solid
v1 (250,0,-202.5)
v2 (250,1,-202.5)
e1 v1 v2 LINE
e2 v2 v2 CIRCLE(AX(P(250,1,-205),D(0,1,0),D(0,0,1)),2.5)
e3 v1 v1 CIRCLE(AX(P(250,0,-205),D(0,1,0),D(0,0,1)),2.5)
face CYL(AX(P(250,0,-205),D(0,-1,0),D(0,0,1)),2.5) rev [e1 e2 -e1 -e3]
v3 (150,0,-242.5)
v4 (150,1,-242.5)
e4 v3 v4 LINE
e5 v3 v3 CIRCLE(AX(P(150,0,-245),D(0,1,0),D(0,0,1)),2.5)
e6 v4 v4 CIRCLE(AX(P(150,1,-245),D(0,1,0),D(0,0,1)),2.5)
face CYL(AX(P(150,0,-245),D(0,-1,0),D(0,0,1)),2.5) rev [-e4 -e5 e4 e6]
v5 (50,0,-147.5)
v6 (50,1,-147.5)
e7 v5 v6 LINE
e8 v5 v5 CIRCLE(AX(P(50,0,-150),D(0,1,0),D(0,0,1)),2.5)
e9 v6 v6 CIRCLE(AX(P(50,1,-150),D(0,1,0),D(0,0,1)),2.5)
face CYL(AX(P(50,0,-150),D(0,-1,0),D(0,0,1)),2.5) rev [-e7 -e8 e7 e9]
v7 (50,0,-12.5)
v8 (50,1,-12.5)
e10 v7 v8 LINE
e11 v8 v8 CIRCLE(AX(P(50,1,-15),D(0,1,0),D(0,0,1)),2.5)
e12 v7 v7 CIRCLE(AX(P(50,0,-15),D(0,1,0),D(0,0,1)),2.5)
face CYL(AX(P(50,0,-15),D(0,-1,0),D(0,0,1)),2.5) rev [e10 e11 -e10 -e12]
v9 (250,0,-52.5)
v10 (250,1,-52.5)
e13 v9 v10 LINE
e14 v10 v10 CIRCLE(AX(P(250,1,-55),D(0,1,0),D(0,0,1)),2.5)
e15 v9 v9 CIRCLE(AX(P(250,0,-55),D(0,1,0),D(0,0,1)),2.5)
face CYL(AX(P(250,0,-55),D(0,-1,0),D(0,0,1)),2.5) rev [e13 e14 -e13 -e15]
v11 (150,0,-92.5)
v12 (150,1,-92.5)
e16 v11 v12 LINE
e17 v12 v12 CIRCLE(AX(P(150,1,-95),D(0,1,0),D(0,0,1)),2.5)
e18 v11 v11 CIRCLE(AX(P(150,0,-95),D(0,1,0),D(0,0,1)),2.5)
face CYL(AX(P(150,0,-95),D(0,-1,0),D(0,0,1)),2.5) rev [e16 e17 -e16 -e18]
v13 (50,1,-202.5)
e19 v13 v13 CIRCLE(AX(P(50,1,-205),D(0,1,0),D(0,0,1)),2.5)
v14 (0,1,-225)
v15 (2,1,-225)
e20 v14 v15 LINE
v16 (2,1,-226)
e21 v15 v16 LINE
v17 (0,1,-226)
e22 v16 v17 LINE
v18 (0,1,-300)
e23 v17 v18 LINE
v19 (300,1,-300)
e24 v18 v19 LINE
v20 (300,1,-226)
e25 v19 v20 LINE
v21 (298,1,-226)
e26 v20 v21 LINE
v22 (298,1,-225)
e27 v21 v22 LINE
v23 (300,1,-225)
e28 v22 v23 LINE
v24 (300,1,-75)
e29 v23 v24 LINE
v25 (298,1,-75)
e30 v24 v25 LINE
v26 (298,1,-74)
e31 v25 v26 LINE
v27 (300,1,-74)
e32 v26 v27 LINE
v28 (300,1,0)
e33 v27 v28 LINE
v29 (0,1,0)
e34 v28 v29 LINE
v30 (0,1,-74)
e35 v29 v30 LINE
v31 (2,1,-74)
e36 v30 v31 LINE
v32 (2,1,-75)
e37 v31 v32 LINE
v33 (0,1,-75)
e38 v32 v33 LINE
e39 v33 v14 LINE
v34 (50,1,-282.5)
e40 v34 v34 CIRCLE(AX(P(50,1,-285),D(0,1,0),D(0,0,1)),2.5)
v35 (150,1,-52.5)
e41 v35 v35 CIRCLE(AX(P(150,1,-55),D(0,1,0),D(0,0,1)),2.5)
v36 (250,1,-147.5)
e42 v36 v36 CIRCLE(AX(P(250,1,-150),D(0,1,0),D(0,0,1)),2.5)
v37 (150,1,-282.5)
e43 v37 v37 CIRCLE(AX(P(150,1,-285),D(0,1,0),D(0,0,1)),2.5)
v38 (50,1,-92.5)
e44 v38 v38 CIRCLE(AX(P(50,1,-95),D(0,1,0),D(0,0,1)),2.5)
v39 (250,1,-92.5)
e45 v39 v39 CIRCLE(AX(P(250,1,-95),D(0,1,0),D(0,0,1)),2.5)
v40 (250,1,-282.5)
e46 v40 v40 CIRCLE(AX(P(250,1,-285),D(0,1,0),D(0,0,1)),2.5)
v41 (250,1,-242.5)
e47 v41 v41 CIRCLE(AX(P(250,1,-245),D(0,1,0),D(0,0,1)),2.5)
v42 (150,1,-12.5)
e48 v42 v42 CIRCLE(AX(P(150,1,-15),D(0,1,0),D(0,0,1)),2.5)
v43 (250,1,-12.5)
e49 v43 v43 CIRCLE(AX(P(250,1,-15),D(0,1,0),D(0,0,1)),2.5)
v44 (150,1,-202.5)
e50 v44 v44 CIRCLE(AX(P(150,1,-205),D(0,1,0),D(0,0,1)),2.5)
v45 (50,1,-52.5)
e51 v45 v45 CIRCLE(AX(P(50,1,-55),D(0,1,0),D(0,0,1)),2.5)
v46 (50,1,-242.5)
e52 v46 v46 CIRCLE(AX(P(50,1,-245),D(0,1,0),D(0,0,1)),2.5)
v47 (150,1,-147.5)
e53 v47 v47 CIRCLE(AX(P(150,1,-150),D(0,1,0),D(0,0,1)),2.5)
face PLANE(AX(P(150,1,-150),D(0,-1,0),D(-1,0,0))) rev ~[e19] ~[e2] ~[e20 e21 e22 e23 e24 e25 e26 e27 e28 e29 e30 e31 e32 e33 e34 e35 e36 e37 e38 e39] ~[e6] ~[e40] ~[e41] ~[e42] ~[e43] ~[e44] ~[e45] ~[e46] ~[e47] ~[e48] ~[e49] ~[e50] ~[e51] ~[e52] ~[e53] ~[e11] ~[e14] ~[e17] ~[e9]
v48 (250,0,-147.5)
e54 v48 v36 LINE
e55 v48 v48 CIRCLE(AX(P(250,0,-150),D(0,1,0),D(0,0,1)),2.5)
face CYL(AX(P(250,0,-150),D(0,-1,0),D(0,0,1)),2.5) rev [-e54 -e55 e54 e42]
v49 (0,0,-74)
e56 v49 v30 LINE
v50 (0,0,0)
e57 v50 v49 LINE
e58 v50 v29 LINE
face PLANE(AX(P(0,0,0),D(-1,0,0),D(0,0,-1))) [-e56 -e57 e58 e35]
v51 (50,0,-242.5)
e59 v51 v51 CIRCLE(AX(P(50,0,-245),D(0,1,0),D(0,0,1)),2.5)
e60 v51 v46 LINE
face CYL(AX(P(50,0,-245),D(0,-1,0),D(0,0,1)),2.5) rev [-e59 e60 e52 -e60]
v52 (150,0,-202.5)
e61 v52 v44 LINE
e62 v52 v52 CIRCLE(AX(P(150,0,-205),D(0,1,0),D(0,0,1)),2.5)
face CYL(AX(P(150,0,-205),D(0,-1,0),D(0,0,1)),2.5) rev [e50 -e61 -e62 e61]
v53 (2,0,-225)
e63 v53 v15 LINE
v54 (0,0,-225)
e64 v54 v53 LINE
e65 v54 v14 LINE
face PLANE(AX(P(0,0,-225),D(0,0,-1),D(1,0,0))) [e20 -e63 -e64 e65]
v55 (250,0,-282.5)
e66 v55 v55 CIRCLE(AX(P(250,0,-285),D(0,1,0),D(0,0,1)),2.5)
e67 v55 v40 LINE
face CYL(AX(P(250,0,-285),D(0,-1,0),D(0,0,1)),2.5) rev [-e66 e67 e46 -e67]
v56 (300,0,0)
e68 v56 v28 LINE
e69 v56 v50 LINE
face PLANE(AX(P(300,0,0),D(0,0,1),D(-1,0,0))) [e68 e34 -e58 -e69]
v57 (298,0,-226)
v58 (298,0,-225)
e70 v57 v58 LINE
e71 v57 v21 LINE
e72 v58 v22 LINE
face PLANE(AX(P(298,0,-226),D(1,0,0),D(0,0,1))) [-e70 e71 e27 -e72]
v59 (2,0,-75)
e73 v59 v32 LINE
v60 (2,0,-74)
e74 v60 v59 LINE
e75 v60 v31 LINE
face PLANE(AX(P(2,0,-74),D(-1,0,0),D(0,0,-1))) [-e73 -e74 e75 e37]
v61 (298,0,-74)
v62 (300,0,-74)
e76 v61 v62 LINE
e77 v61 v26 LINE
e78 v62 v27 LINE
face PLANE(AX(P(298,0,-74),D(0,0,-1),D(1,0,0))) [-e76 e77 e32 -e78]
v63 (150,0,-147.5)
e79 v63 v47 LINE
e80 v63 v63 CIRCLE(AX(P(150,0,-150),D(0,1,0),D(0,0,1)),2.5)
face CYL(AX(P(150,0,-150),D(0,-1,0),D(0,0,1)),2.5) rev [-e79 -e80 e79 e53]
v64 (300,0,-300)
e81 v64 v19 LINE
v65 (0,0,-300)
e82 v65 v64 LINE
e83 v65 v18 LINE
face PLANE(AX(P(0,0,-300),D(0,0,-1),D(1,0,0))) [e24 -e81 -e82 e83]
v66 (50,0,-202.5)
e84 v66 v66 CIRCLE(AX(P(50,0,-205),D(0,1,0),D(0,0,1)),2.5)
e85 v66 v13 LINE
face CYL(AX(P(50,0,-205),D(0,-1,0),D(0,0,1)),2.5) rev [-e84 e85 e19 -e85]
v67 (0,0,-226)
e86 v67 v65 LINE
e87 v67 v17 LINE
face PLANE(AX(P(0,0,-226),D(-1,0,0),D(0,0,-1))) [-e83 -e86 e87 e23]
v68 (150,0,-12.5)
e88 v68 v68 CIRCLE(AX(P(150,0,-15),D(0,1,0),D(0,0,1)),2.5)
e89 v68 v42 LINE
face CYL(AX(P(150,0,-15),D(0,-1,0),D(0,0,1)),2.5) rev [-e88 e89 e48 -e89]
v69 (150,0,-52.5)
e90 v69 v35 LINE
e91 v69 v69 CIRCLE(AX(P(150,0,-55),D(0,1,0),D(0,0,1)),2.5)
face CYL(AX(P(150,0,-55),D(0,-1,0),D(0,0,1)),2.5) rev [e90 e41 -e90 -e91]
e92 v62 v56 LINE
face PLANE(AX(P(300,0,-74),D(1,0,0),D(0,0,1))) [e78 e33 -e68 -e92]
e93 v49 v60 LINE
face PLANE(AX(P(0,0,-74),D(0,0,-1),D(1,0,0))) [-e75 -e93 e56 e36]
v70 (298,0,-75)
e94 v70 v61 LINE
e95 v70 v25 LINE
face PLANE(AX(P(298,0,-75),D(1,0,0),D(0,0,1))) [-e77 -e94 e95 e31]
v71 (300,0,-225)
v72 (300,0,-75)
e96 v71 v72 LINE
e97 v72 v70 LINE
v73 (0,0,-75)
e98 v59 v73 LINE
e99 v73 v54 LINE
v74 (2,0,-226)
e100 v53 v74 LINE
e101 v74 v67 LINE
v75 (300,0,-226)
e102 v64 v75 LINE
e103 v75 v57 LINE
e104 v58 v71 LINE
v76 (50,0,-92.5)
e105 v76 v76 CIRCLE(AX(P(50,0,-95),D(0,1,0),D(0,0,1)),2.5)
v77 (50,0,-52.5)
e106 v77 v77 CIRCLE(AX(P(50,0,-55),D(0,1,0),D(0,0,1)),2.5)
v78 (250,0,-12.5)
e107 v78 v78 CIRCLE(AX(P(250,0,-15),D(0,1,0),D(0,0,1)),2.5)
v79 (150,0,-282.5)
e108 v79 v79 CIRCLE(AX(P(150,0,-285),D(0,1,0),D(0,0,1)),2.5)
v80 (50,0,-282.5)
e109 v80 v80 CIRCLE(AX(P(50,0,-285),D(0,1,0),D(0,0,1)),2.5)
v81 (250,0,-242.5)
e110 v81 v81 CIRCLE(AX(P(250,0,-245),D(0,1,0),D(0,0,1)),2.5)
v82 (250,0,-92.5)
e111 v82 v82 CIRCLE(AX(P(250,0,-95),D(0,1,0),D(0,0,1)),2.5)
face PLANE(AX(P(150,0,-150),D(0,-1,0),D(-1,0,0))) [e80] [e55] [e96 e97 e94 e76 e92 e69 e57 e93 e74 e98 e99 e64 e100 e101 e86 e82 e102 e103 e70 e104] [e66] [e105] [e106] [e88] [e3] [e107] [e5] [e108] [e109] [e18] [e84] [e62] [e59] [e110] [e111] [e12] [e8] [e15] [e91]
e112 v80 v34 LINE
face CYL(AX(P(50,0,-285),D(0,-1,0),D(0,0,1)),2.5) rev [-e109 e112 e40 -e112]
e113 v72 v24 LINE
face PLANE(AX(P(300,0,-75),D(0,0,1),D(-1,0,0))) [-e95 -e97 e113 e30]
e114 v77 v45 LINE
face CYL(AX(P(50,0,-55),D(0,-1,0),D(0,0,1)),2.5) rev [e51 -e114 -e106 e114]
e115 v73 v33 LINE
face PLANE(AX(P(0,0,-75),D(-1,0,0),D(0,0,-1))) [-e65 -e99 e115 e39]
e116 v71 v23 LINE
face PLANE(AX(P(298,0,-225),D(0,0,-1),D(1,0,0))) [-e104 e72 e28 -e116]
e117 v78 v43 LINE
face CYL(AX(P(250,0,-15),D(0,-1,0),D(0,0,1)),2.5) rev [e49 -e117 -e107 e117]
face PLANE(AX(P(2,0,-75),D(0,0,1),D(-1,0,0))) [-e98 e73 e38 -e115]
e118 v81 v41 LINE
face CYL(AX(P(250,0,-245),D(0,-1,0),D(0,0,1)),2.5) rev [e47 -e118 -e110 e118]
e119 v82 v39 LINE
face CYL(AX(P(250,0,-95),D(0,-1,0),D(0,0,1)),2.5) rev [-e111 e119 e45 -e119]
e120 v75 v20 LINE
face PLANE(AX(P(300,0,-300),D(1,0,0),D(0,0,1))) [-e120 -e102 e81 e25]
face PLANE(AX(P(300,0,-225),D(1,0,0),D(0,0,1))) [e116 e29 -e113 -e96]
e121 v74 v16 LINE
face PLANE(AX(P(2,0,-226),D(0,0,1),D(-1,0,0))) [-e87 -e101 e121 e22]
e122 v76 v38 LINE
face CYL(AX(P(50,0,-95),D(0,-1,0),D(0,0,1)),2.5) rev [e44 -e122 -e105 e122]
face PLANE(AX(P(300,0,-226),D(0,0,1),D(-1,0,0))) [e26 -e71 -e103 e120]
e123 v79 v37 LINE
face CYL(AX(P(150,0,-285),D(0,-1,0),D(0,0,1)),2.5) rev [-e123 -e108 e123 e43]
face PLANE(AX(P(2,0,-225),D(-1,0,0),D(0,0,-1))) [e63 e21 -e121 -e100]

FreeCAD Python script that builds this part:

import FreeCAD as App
import Part
import Sketcher
from FreeCAD import Vector


def add_polygon(sketch, points):
    """Adds a closed chain of lines whose ends are joined by coincident constraints."""
    first, n = sketch.GeometryCount, len(points)
    for a, b in zip(points, points[1:] + points[:1]):
        sketch.addGeometry(Part.LineSegment(App.Vector(*a, 0), App.Vector(*b, 0)), False)
    for i in range(n):
        sketch.addConstraint(Sketcher.Constraint("Coincident", first + i, 2, first + (i + 1) % n, 1))

doc = App.newDocument("Part")
params = doc.addObject("Spreadsheet::Sheet", "Params")
for row, (alias, value) in enumerate([
    ("sketch1_diameter", "5 mm"),
    ("sketch1_width", "300 mm"),
    ("sketch1_width2", "2 mm"),
    ("sketch1_height", "74 mm"),
    ("sketch1_height2", "1 mm"),
    ("pad1_length", "1 mm"),
], start=1):
    params.set(f"A{row}", alias)
    params.set(f"B{row}", "=" + value)
    params.setAlias(f"B{row}", alias)

body = doc.addObject("PartDesign::Body", "Body")

# Sketch on XZ plane
sketch1 = body.newObject("Sketcher::SketchObject", "Sketch")
sketch1.AttachmentSupport = (doc.getObject("XZ_Plane"), [""])
sketch1.MapMode = "FlatFace"
add_polygon(sketch1, [(0, -74), (0, 0), (300, 0), (300, -74), (298, -74), (298, -75), (300, -75), (300, -225), (298, -225), (298, -226), (300, -226), (300, -300), (0, -300), (0, -226), (2, -226), (2, -225), (0, -225), (0, -75), (2, -75), (2, -74)])  # lines 0-19
sketch1.addGeometry(Part.Circle(Vector(250, -15, 0), Vector(0, 0, 1), 2.5), False)  # 20
sketch1.addGeometry(Part.Circle(Vector(250, -55, 0), Vector(0, 0, 1), 2.5), False)  # 21
sketch1.addGeometry(Part.Circle(Vector(250, -95, 0), Vector(0, 0, 1), 2.5), False)  # 22
sketch1.addGeometry(Part.Circle(Vector(150, -15, 0), Vector(0, 0, 1), 2.5), False)  # 23
sketch1.addGeometry(Part.Circle(Vector(150, -55, 0), Vector(0, 0, 1), 2.5), False)  # 24
sketch1.addGeometry(Part.Circle(Vector(50, -15, 0), Vector(0, 0, 1), 2.5), False)  # 25
sketch1.addGeometry(Part.Circle(Vector(50, -55, 0), Vector(0, 0, 1), 2.5), False)  # 26
sketch1.addGeometry(Part.Circle(Vector(150, -95, 0), Vector(0, 0, 1), 2.5), False)  # 27
sketch1.addGeometry(Part.Circle(Vector(50, -95, 0), Vector(0, 0, 1), 2.5), False)  # 28
sketch1.addGeometry(Part.Circle(Vector(250, -150, 0), Vector(0, 0, 1), 2.5), False)  # 29
sketch1.addGeometry(Part.Circle(Vector(250, -205, 0), Vector(0, 0, 1), 2.5), False)  # 30
sketch1.addGeometry(Part.Circle(Vector(250, -245, 0), Vector(0, 0, 1), 2.5), False)  # 31
sketch1.addGeometry(Part.Circle(Vector(250, -285, 0), Vector(0, 0, 1), 2.5), False)  # 32
sketch1.addGeometry(Part.Circle(Vector(150, -150, 0), Vector(0, 0, 1), 2.5), False)  # 33
sketch1.addGeometry(Part.Circle(Vector(150, -205, 0), Vector(0, 0, 1), 2.5), False)  # 34
sketch1.addGeometry(Part.Circle(Vector(50, -150, 0), Vector(0, 0, 1), 2.5), False)  # 35
sketch1.addGeometry(Part.Circle(Vector(50, -205, 0), Vector(0, 0, 1), 2.5), False)  # 36
sketch1.addGeometry(Part.Circle(Vector(150, -245, 0), Vector(0, 0, 1), 2.5), False)  # 37
sketch1.addGeometry(Part.Circle(Vector(150, -285, 0), Vector(0, 0, 1), 2.5), False)  # 38
sketch1.addGeometry(Part.Circle(Vector(50, -245, 0), Vector(0, 0, 1), 2.5), False)  # 39
sketch1.addGeometry(Part.Circle(Vector(50, -285, 0), Vector(0, 0, 1), 2.5), False)  # 40
sketch1.addConstraint(Sketcher.Constraint("Vertical", 0))
sketch1.addConstraint(Sketcher.Constraint("Horizontal", 1))
sketch1.addConstraint(Sketcher.Constraint("Vertical", 2))
sketch1.addConstraint(Sketcher.Constraint("Horizontal", 3))
sketch1.addConstraint(Sketcher.Constraint("Vertical", 4))
sketch1.addConstraint(Sketcher.Constraint("Horizontal", 5))
sketch1.addConstraint(Sketcher.Constraint("Vertical", 6))
sketch1.addConstraint(Sketcher.Constraint("Horizontal", 7))
sketch1.addConstraint(Sketcher.Constraint("Vertical", 8))
sketch1.addConstraint(Sketcher.Constraint("Horizontal", 9))
sketch1.addConstraint(Sketcher.Constraint("Vertical", 10))
sketch1.addConstraint(Sketcher.Constraint("Horizontal", 11))
sketch1.addConstraint(Sketcher.Constraint("Vertical", 12))
sketch1.addConstraint(Sketcher.Constraint("Horizontal", 13))
sketch1.addConstraint(Sketcher.Constraint("Vertical", 14))
sketch1.addConstraint(Sketcher.Constraint("Horizontal", 15))
sketch1.addConstraint(Sketcher.Constraint("Vertical", 16))
sketch1.addConstraint(Sketcher.Constraint("Horizontal", 17))
sketch1.addConstraint(Sketcher.Constraint("Vertical", 18))
sketch1.addConstraint(Sketcher.Constraint("Horizontal", 19))
sketch1.addConstraint(Sketcher.Constraint("Coincident", 0, 2, -1, 1))
sketch1.addConstraint(Sketcher.Constraint("Equal", 20, 21))
sketch1.addConstraint(Sketcher.Constraint("Equal", 21, 22))
sketch1.addConstraint(Sketcher.Constraint("Equal", 22, 23))
sketch1.addConstraint(Sketcher.Constraint("Equal", 23, 24))
sketch1.addConstraint(Sketcher.Constraint("Equal", 24, 25))
sketch1.addConstraint(Sketcher.Constraint("Equal", 25, 26))
sketch1.addConstraint(Sketcher.Constraint("Equal", 26, 27))
sketch1.addConstraint(Sketcher.Constraint("Equal", 27, 28))
sketch1.addConstraint(Sketcher.Constraint("Equal", 28, 29))
sketch1.addConstraint(Sketcher.Constraint("Equal", 29, 30))
sketch1.addConstraint(Sketcher.Constraint("Equal", 30, 31))
sketch1.addConstraint(Sketcher.Constraint("Equal", 31, 32))
sketch1.addConstraint(Sketcher.Constraint("Equal", 32, 33))
sketch1.addConstraint(Sketcher.Constraint("Equal", 33, 34))
sketch1.addConstraint(Sketcher.Constraint("Equal", 34, 35))
sketch1.addConstraint(Sketcher.Constraint("Equal", 35, 36))
sketch1.addConstraint(Sketcher.Constraint("Equal", 36, 37))
sketch1.addConstraint(Sketcher.Constraint("Equal", 37, 38))
sketch1.addConstraint(Sketcher.Constraint("Equal", 38, 39))
sketch1.addConstraint(Sketcher.Constraint("Equal", 39, 40))
sketch1.addConstraint(Sketcher.Constraint("PointOnObject", 11, 2, -2))
sketch1.addConstraint(Sketcher.Constraint("PointOnObject", 15, 2, -2))
sketch1.addConstraint(Sketcher.Constraint("Horizontal", 20, 3, 23, 3))
sketch1.addConstraint(Sketcher.Constraint("Horizontal", 21, 3, 24, 3))
sketch1.addConstraint(Sketcher.Constraint("Horizontal", 23, 3, 25, 3))
sketch1.addConstraint(Sketcher.Constraint("Horizontal", 24, 3, 26, 3))
sketch1.addConstraint(Sketcher.Constraint("Horizontal", 22, 3, 27, 3))
sketch1.addConstraint(Sketcher.Constraint("Horizontal", 27, 3, 28, 3))
sketch1.addConstraint(Sketcher.Constraint("Horizontal", 29, 3, 33, 3))
sketch1.addConstraint(Sketcher.Constraint("Horizontal", 30, 3, 34, 3))
sketch1.addConstraint(Sketcher.Constraint("Horizontal", 33, 3, 35, 3))
sketch1.addConstraint(Sketcher.Constraint("Horizontal", 34, 3, 36, 3))
sketch1.addConstraint(Sketcher.Constraint("Horizontal", 31, 3, 37, 3))
sketch1.addConstraint(Sketcher.Constraint("Horizontal", 32, 3, 38, 3))
sketch1.addConstraint(Sketcher.Constraint("Horizontal", 37, 3, 39, 3))
sketch1.addConstraint(Sketcher.Constraint("Horizontal", 38, 3, 40, 3))
sketch1.addConstraint(Sketcher.Constraint("Horizontal", 9, 2, 12, 2))
sketch1.addConstraint(Sketcher.Constraint("Horizontal", 7, 2, 14, 2))
sketch1.addConstraint(Sketcher.Constraint("Horizontal", 5, 2, 16, 2))
sketch1.addConstraint(Sketcher.Constraint("Horizontal", 3, 2, 18, 2))
sketch1.addConstraint(Sketcher.Constraint("Vertical", 20, 3, 21, 3))
sketch1.addConstraint(Sketcher.Constraint("Vertical", 21, 3, 22, 3))
sketch1.addConstraint(Sketcher.Constraint("Vertical", 23, 3, 24, 3))
sketch1.addConstraint(Sketcher.Constraint("Vertical", 25, 3, 26, 3))
sketch1.addConstraint(Sketcher.Constraint("Vertical", 24, 3, 27, 3))
sketch1.addConstraint(Sketcher.Constraint("Vertical", 26, 3, 28, 3))
sketch1.addConstraint(Sketcher.Constraint("Vertical", 22, 3, 29, 3))
sketch1.addConstraint(Sketcher.Constraint("Vertical", 29, 3, 30, 3))
sketch1.addConstraint(Sketcher.Constraint("Vertical", 30, 3, 31, 3))
sketch1.addConstraint(Sketcher.Constraint("Vertical", 31, 3, 32, 3))
sketch1.addConstraint(Sketcher.Constraint("Vertical", 27, 3, 33, 3))
sketch1.addConstraint(Sketcher.Constraint("Vertical", 33, 3, 34, 3))
sketch1.addConstraint(Sketcher.Constraint("Vertical", 28, 3, 35, 3))
sketch1.addConstraint(Sketcher.Constraint("Vertical", 35, 3, 36, 3))
sketch1.addConstraint(Sketcher.Constraint("Vertical", 34, 3, 37, 3))
sketch1.addConstraint(Sketcher.Constraint("Vertical", 37, 3, 38, 3))
sketch1.addConstraint(Sketcher.Constraint("Vertical", 36, 3, 39, 3))
sketch1.addConstraint(Sketcher.Constraint("Vertical", 39, 3, 40, 3))
sketch1.addConstraint(Sketcher.Constraint("Vertical", 2, 2, 5, 2))
sketch1.addConstraint(Sketcher.Constraint("Vertical", 4, 2, 7, 2))
sketch1.addConstraint(Sketcher.Constraint("Vertical", 6, 2, 9, 2))
sketch1.addConstraint(Sketcher.Constraint("Vertical", 14, 2, 17, 2))
sketch1.addConstraint(Sketcher.Constraint("Equal", 9, 13))
sketch1.addConstraint(Sketcher.Constraint("Equal", 4, 8))
sketch1.addConstraint(Sketcher.Constraint("Equal", 2, 10))
sketch1.addConstraint(Sketcher.Constraint("Diameter", 20, 5.0))
sketch1.addConstraint(Sketcher.Constraint("DistanceX", 1, 1, 1, 2, 300.0))
sketch1.addConstraint(Sketcher.Constraint("DistanceX", 3, 2, 3, 1, 2.0))
sketch1.addConstraint(Sketcher.Constraint("DistanceY", 0, 1, 0, 2, 74.0))
sketch1.addConstraint(Sketcher.Constraint("DistanceY", 4, 2, 4, 1, 1.0))
sketch1.addConstraint(Sketcher.Constraint("DistanceY", 6, 2, 6, 1, 150.0))
sketch1.addConstraint(Sketcher.Constraint("DistanceX", -1, 1, 20, 3, 250.0))
sketch1.addConstraint(Sketcher.Constraint("DistanceY", 20, 3, -1, 1, 15.0))
sketch1.addConstraint(Sketcher.Constraint("DistanceY", 21, 3, -1, 1, 55.0))
sketch1.addConstraint(Sketcher.Constraint("DistanceY", 22, 3, -1, 1, 95.0))
sketch1.addConstraint(Sketcher.Constraint("DistanceX", -1, 1, 23, 3, 150.0))
sketch1.addConstraint(Sketcher.Constraint("DistanceX", -1, 1, 25, 3, 50.0))
sketch1.addConstraint(Sketcher.Constraint("DistanceY", 29, 3, -1, 1, 150.0))
sketch1.addConstraint(Sketcher.Constraint("DistanceY", 30, 3, -1, 1, 205.0))
sketch1.addConstraint(Sketcher.Constraint("DistanceY", 31, 3, -1, 1, 245.0))
sketch1.addConstraint(Sketcher.Constraint("DistanceY", 32, 3, -1, 1, 285.0))
sketch1.setExpression("Constraints[106]", "Params.sketch1_diameter")
sketch1.setExpression("Constraints[107]", "Params.sketch1_width")
sketch1.setExpression("Constraints[108]", "Params.sketch1_width2")
sketch1.setExpression("Constraints[109]", "Params.sketch1_height")
sketch1.setExpression("Constraints[110]", "Params.sketch1_height2")
pad1 = body.newObject("PartDesign::Pad", "Pad")
pad1.Profile = sketch1
pad1.setExpression("Length", "Params.pad1_length")
pad1.Reversed = True

doc.recompute()
